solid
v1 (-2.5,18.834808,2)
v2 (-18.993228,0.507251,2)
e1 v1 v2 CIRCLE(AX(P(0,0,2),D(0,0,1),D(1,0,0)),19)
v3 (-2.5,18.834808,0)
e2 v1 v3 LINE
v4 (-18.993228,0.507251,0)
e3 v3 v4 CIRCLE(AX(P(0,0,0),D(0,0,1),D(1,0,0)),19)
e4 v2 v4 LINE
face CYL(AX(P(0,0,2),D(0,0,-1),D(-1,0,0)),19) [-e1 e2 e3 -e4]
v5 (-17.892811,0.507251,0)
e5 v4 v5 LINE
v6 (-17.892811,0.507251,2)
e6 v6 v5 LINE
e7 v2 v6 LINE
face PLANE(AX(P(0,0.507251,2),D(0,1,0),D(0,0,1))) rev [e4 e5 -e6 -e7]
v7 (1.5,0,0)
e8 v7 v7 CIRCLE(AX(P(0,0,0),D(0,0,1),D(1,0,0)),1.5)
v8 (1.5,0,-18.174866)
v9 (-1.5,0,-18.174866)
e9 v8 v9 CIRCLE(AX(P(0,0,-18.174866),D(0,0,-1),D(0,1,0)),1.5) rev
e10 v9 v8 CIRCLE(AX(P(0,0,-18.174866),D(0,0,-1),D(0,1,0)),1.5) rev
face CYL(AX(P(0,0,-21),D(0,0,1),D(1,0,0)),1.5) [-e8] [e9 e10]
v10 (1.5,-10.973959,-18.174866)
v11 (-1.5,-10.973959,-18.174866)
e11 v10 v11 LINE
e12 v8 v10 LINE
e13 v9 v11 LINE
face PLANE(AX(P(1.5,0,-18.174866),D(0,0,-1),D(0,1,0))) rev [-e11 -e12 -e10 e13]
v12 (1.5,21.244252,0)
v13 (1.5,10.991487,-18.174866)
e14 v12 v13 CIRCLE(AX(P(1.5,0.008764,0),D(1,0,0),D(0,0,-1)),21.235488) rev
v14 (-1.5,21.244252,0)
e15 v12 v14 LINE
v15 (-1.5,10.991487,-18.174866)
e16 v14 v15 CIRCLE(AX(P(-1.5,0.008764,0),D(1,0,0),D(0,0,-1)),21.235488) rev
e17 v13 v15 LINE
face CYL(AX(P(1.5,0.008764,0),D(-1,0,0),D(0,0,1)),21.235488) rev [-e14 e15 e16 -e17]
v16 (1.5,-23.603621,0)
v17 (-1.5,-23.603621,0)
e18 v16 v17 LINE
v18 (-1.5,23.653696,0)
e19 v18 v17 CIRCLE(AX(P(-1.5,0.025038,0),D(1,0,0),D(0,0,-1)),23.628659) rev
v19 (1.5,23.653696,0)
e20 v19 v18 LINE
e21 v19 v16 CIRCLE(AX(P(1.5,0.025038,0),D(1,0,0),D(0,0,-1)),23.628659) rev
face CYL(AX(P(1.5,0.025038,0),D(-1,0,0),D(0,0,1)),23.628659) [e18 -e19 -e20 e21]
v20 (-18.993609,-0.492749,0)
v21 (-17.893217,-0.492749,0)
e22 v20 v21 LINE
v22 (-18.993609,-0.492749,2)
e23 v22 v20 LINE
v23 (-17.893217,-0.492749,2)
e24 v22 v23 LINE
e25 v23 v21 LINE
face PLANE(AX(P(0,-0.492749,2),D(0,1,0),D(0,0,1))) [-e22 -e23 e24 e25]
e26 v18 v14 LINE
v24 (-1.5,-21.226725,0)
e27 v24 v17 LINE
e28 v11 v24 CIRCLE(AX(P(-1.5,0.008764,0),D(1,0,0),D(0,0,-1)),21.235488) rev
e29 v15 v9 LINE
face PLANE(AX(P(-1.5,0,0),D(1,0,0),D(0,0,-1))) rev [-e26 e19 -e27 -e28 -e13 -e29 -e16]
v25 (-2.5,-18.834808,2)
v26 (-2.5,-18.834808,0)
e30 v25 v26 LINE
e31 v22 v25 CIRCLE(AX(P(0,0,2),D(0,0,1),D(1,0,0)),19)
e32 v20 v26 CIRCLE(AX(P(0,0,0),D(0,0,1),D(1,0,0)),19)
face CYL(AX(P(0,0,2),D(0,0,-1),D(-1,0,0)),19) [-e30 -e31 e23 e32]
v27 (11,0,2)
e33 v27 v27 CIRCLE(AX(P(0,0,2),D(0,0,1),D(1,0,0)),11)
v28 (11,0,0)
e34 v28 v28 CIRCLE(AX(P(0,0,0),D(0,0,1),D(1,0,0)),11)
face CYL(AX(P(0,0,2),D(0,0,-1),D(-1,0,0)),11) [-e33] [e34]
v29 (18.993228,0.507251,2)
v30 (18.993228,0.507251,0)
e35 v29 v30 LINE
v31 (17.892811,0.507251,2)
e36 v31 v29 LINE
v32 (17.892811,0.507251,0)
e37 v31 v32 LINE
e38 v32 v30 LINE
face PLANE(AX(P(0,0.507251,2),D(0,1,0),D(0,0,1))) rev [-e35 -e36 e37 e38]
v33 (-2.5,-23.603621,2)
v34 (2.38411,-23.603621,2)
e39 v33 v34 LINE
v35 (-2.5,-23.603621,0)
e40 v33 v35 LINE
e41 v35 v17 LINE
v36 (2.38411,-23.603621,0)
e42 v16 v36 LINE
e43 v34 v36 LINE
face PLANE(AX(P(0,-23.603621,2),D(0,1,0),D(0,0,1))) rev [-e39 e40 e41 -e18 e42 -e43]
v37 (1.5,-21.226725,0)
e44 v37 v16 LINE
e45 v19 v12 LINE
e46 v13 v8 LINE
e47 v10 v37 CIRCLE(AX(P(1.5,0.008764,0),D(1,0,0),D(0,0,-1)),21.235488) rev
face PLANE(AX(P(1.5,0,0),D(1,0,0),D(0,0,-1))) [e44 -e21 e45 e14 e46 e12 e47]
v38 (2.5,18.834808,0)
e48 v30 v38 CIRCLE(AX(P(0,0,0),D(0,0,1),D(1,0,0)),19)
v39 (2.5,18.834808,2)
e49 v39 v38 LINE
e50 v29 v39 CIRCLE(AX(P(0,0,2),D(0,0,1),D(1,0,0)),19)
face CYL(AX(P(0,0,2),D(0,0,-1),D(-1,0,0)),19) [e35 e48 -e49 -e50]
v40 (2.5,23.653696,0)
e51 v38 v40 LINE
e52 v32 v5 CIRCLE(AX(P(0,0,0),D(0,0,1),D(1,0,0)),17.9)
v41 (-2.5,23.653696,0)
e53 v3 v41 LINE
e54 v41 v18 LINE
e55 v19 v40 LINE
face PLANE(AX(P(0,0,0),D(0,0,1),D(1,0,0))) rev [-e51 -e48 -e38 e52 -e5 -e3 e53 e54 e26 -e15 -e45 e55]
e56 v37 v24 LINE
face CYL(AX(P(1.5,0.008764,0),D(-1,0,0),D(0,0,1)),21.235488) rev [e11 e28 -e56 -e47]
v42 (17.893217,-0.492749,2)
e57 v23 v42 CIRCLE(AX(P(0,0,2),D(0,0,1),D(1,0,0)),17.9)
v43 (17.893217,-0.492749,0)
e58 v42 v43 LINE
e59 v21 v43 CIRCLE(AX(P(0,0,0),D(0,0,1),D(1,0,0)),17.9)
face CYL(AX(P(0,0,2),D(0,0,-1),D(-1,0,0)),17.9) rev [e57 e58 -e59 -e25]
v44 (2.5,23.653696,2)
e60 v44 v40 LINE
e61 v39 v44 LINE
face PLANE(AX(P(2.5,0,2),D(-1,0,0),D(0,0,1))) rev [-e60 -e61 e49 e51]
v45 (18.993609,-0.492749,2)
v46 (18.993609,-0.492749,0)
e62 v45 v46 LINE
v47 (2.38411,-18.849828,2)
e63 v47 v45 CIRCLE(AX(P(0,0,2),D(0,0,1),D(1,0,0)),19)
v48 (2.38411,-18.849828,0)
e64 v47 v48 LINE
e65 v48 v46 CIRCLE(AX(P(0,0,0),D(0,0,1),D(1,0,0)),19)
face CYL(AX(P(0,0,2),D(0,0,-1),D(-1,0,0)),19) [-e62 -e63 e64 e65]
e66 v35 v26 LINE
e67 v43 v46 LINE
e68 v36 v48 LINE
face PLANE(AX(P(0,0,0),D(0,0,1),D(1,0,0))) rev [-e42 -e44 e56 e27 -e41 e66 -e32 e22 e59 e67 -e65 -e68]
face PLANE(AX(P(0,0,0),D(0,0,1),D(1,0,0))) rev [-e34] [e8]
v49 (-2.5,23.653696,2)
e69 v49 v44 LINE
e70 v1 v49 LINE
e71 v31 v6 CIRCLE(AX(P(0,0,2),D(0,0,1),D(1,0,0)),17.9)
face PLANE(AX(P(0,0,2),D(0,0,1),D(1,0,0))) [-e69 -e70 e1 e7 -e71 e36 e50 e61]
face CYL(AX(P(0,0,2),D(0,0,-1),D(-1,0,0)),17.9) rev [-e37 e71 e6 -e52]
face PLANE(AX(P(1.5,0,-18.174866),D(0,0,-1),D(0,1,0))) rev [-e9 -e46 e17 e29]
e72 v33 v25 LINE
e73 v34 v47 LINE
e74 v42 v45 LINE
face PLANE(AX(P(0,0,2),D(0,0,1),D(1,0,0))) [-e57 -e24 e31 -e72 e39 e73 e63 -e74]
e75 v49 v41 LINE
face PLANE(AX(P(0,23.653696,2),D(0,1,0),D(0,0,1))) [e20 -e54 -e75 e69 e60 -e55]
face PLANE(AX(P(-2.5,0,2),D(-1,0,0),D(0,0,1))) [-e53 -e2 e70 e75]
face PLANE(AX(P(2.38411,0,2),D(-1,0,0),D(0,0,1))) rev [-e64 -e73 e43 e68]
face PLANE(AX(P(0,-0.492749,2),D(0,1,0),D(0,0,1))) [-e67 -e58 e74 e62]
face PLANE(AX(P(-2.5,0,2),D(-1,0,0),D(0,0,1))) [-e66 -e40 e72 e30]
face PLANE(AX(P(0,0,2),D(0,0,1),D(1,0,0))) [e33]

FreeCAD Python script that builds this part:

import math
import FreeCAD as App
import Part
import Sketcher
from FreeCAD import Vector
Q = App.Units.Quantity

doc = App.newDocument("Part")
body = doc.addObject("PartDesign::Body", "Body")
body.AllowCompound = True

sketch1 = body.newObject("Sketcher::SketchObject", "Sketch")
sketch1.AttachmentSupport = (doc.getObject("XY_Plane"), [""])
sketch1.MapMode = "FlatFace"
sketch1.addGeometry(Part.LineSegment(Vector(2.5, 18.83, 0), Vector(2.5, 23.65, 0)), False)
sketch1.addGeometry(Part.LineSegment(Vector(2.5, 23.65, 0), Vector(-2.5, 23.65, 0)), False)
sketch1.addGeometry(Part.LineSegment(Vector(-2.5, 23.65, 0), Vector(-2.5, 18.83, 0)), False)
sketch1.addGeometry(Part.ArcOfCircle(Part.Circle(Vector(0, 0, 0), Vector(0, 0, 1), 19), math.radians(98), math.radians(178)), False)
sketch1.addGeometry(Part.LineSegment(Vector(-18.99, 0.51, 0), Vector(-17.89, 0.51, 0)), False)
sketch1.addGeometry(Part.ArcOfCircle(Part.Circle(Vector(0, 0, 0), Vector(0, 0, 1), 17.9), math.radians(2), math.radians(178)), False)
sketch1.addGeometry(Part.LineSegment(Vector(17.89, 0.51, 0), Vector(18.99, 0.51, 0)), False)
sketch1.addGeometry(Part.ArcOfCircle(Part.Circle(Vector(0, 0, 0), Vector(0, 0, 1), 19), math.radians(2), math.radians(82)), False)
sketch1.addGeometry(Part.LineSegment(Vector(-17.89, -0.49, 0), Vector(-18.99, -0.49, 0)), False)
sketch1.addGeometry(Part.ArcOfCircle(Part.Circle(Vector(0, 0, 0), Vector(0, 0, 1), 19), math.radians(-179), math.radians(-98)), False)
sketch1.addGeometry(Part.LineSegment(Vector(-2.5, -18.83, 0), Vector(-2.5, -23.6, 0)), False)
sketch1.addGeometry(Part.LineSegment(Vector(-2.5, -23.6, 0), Vector(2.38, -23.6, 0)), False)
sketch1.addGeometry(Part.LineSegment(Vector(2.38, -23.6, 0), Vector(2.38, -18.85, 0)), False)
sketch1.addGeometry(Part.ArcOfCircle(Part.Circle(Vector(0, 0, 0), Vector(0, 0, 1), 19), math.radians(-83), math.radians(-1)), False)
sketch1.addGeometry(Part.LineSegment(Vector(18.99, -0.49, 0), Vector(17.89, -0.49, 0)), False)
sketch1.addGeometry(Part.ArcOfCircle(Part.Circle(Vector(0, 0, 0), Vector(0, 0, 1), 17.9), math.radians(-178), math.radians(-2)), False)
sketch1.addGeometry(Part.ArcOfCircle(Part.Circle(Vector(0, 0, 0), Vector(0, 0, 1), 11), math.radians(-177), math.radians(-3)), False)
sketch1.addGeometry(Part.ArcOfCircle(Part.Circle(Vector(0, 0, 0), Vector(0, 0, 1), 11), math.radians(-2.57), math.radians(0)), False)
sketch1.addGeometry(Part.ArcOfCircle(Part.Circle(Vector(0, 0, 0), Vector(0, 0, 1), 11), math.radians(0), math.radians(2.64)), False)
sketch1.addGeometry(Part.ArcOfCircle(Part.Circle(Vector(0, 0, 0), Vector(0, 0, 1), 11), math.radians(3), math.radians(177)), False)
sketch1.addGeometry(Part.ArcOfCircle(Part.Circle(Vector(0, 0, 0), Vector(0, 0, 1), 11), math.radians(177.36), math.radians(182.57)), False)
sketch1.addConstraint(Sketcher.Constraint("Coincident", 0, 2, 1, 1))
sketch1.addConstraint(Sketcher.Constraint("Coincident", 1, 2, 2, 1))
sketch1.addConstraint(Sketcher.Constraint("Coincident", 2, 2, 3, 1))
sketch1.addConstraint(Sketcher.Constraint("Coincident", 3, 2, 4, 1))
sketch1.addConstraint(Sketcher.Constraint("Coincident", 4, 2, 5, 2))
sketch1.addConstraint(Sketcher.Constraint("Coincident", 5, 1, 6, 1))
sketch1.addConstraint(Sketcher.Constraint("Coincident", 6, 2, 7, 1))
sketch1.addConstraint(Sketcher.Constraint("Coincident", 7, 2, 0, 1))
sketch1.addConstraint(Sketcher.Constraint("Coincident", 8, 2, 9, 1))
sketch1.addConstraint(Sketcher.Constraint("Coincident", 9, 2, 10, 1))
sketch1.addConstraint(Sketcher.Constraint("Coincident", 10, 2, 11, 1))
sketch1.addConstraint(Sketcher.Constraint("Coincident", 11, 2, 12, 1))
sketch1.addConstraint(Sketcher.Constraint("Coincident", 12, 2, 13, 1))
sketch1.addConstraint(Sketcher.Constraint("Coincident", 13, 2, 14, 1))
sketch1.addConstraint(Sketcher.Constraint("Coincident", 14, 2, 15, 2))
sketch1.addConstraint(Sketcher.Constraint("Coincident", 15, 1, 8, 1))
sketch1.addConstraint(Sketcher.Constraint("Tangent", 16, 2, 17, 1))
sketch1.addConstraint(Sketcher.Constraint("Tangent", 17, 2, 18, 1))
sketch1.addConstraint(Sketcher.Constraint("Tangent", 18, 2, 19, 1))
sketch1.addConstraint(Sketcher.Constraint("Tangent", 19, 2, 20, 1))
sketch1.addConstraint(Sketcher.Constraint("Tangent", 20, 2, 16, 1))
sketch1.addConstraint(Sketcher.Constraint("Vertical", 0))
sketch1.addConstraint(Sketcher.Constraint("Horizontal", 1))
sketch1.addConstraint(Sketcher.Constraint("Vertical", 2))
sketch1.addConstraint(Sketcher.Constraint("Horizontal", 4))
sketch1.addConstraint(Sketcher.Constraint("Horizontal", 6))
sketch1.addConstraint(Sketcher.Constraint("Horizontal", 8))
sketch1.addConstraint(Sketcher.Constraint("Vertical", 10))
sketch1.addConstraint(Sketcher.Constraint("Horizontal", 11))
sketch1.addConstraint(Sketcher.Constraint("Vertical", 12))
sketch1.addConstraint(Sketcher.Constraint("Horizontal", 14))
sketch1.addConstraint(Sketcher.Constraint("Coincident", 3, 3, -1, 1))
sketch1.addConstraint(Sketcher.Constraint("Coincident", 5, 3, -1, 1))
sketch1.addConstraint(Sketcher.Constraint("Coincident", 7, 3, -1, 1))
sketch1.addConstraint(Sketcher.Constraint("Coincident", 9, 3, -1, 1))
sketch1.addConstraint(Sketcher.Constraint("Coincident", 13, 3, -1, 1))
sketch1.addConstraint(Sketcher.Constraint("Coincident", 15, 3, -1, 1))
sketch1.addConstraint(Sketcher.Constraint("Coincident", 16, 3, -1, 1))
sketch1.addConstraint(Sketcher.Constraint("Coincident", 18, 3, -1, 1))
sketch1.addConstraint(Sketcher.Constraint("Equal", 3, 7))
sketch1.addConstraint(Sketcher.Constraint("Equal", 7, 9))
sketch1.addConstraint(Sketcher.Constraint("Equal", 9, 13))
sketch1.addConstraint(Sketcher.Constraint("Equal", 5, 15))
sketch1.addConstraint(Sketcher.Constraint("PointOnObject", 17, 2, -1))
sketch1.addConstraint(Sketcher.Constraint("Horizontal", 4, 2, 5, 1))
sketch1.addConstraint(Sketcher.Constraint("Horizontal", 2, 2, 7, 2))
sketch1.addConstraint(Sketcher.Constraint("Horizontal", 8, 2, 13, 2))
sketch1.addConstraint(Sketcher.Constraint("Horizontal", 15, 1, 16, 2))
sketch1.addConstraint(Sketcher.Constraint("Horizontal", 6, 2, 18, 2))
sketch1.addConstraint(Sketcher.Constraint("Horizontal", 18, 2, 19, 2))
sketch1.addConstraint(Sketcher.Constraint("Horizontal", 16, 2, 20, 2))
sketch1.addConstraint(Sketcher.Constraint("Vertical", 2, 2, 9, 2))
sketch1.addConstraint(Sketcher.Constraint("Radius", 3, Q("19 mm")))
sketch1.addConstraint(Sketcher.Constraint("Radius", 16, Q("11 mm")))
sketch1.addConstraint(Sketcher.Constraint("Radius", 5, Q("17.9 mm")))
sketch1.addConstraint(Sketcher.Constraint("DistanceX", 1, 2, 1, 1, Q("5 mm")))
sketch1.addConstraint(Sketcher.Constraint("DistanceY", 8, 2, 3, 2, Q("1 mm")))
sketch1.addConstraint(Sketcher.Constraint("DistanceX", 11, 1, 11, 2, Q("4.88411 mm")))
sketch1.addConstraint(Sketcher.Constraint("DistanceY", 0, 1, 0, 2, Q("4.818888 mm")))
sketch1.addConstraint(Sketcher.Constraint("DistanceX", -1, 1, 18, 2, Q("10.988298 mm")))
sketch1.addConstraint(Sketcher.Constraint("DistanceY", 10, 2, 10, 1, Q("4.768813 mm")))
pad1 = body.newObject("PartDesign::Pad", "Pad")
pad1.Profile = sketch1
pad1.Length = 2

sketch2 = body.newObject("Sketcher::SketchObject", "Sketch001")
sketch2.AttachmentSupport = (doc.getObject("YZ_Plane"), [""])
sketch2.MapMode = "FlatFace"
sketch2.addGeometry(Part.ArcOfCircle(Part.Circle(Vector(0, 0, 0), Vector(0, 0, 1), 21.2), math.radians(-59), math.radians(0)), False)
sketch2.addGeometry(Part.LineSegment(Vector(11, -18.2, 0), Vector(-11, -18.2, 0)), False)
sketch2.addGeometry(Part.ArcOfCircle(Part.Circle(Vector(0, 0, 0), Vector(0, 0, 1), 21.2), math.radians(180), math.radians(239)), False)
sketch2.addGeometry(Part.LineSegment(Vector(-21.2, 0, 0), Vector(-23.6, 0, 0)), False)
sketch2.addGeometry(Part.ArcOfCircle(Part.Circle(Vector(0, 0, 0), Vector(0, 0, 1), 23.6), math.radians(-180), math.radians(0)), False)
sketch2.addGeometry(Part.LineSegment(Vector(23.7, 0, 0), Vector(21.2, 0, 0)), False)
sketch2.addConstraint(Sketcher.Constraint("Coincident", 0, 1, 1, 1))
sketch2.addConstraint(Sketcher.Constraint("Coincident", 1, 2, 2, 2))
sketch2.addConstraint(Sketcher.Constraint("Coincident", 2, 1, 3, 1))
sketch2.addConstraint(Sketcher.Constraint("Coincident", 3, 2, 4, 1))
sketch2.addConstraint(Sketcher.Constraint("Coincident", 4, 2, 5, 1))
sketch2.addConstraint(Sketcher.Constraint("Coincident", 5, 2, 0, 2))
sketch2.addConstraint(Sketcher.Constraint("Horizontal", 1))
sketch2.addConstraint(Sketcher.Constraint("Horizontal", 3))
sketch2.addConstraint(Sketcher.Constraint("Horizontal", 5))
sketch2.addConstraint(Sketcher.Constraint("Coincident", 2, 3, 0, 3))
sketch2.addConstraint(Sketcher.Constraint("Equal", 0, 2))
sketch2.addConstraint(Sketcher.Constraint("PointOnObject", 0, 3, -1))
sketch2.addConstraint(Sketcher.Constraint("PointOnObject", 4, 3, -1))
sketch2.addConstraint(Sketcher.Constraint("PointOnObject", 2, 1, -1))
sketch2.addConstraint(Sketcher.Constraint("PointOnObject", 4, 2, -1))
sketch2.addConstraint(Sketcher.Constraint("Radius", 0, Q("21.235488 mm")))
sketch2.addConstraint(Sketcher.Constraint("Radius", 4, Q("23.628659 mm")))
sketch2.addConstraint(Sketcher.Constraint("DistanceX", 1, 2, 1, 1, Q("21.965446 mm")))
sketch2.addConstraint(Sketcher.Constraint("DistanceX", 3, 2, 3, 1, Q("2.376896 mm")))
sketch2.addConstraint(Sketcher.Constraint("DistanceX", 1, 2, -1, 1, Q("10.973959 mm")))
pad2 = body.newObject("PartDesign::Pad", "Pad001")
pad2.Profile = sketch2
pad2.Length = 3
pad2.Midplane = True

sketch3 = body.newObject("Sketcher::SketchObject", "Sketch002")
sketch3.AttachmentSupport = (doc.getObject("XY_Plane"), [""])
sketch3.MapMode = "FlatFace"
sketch3.addGeometry(Part.Circle(Vector(0, 0, 0), Vector(0, 0, 1), 1.5), False)
sketch3.addConstraint(Sketcher.Constraint("Coincident", 0, 3, -1, 1))
sketch3.addConstraint(Sketcher.Constraint("Diameter", 0, Q("3 mm")))
pad3 = body.newObject("PartDesign::Pad", "Pad002")
pad3.Profile = sketch3
pad3.Length = 21
pad3.Reversed = True

doc.recompute()
